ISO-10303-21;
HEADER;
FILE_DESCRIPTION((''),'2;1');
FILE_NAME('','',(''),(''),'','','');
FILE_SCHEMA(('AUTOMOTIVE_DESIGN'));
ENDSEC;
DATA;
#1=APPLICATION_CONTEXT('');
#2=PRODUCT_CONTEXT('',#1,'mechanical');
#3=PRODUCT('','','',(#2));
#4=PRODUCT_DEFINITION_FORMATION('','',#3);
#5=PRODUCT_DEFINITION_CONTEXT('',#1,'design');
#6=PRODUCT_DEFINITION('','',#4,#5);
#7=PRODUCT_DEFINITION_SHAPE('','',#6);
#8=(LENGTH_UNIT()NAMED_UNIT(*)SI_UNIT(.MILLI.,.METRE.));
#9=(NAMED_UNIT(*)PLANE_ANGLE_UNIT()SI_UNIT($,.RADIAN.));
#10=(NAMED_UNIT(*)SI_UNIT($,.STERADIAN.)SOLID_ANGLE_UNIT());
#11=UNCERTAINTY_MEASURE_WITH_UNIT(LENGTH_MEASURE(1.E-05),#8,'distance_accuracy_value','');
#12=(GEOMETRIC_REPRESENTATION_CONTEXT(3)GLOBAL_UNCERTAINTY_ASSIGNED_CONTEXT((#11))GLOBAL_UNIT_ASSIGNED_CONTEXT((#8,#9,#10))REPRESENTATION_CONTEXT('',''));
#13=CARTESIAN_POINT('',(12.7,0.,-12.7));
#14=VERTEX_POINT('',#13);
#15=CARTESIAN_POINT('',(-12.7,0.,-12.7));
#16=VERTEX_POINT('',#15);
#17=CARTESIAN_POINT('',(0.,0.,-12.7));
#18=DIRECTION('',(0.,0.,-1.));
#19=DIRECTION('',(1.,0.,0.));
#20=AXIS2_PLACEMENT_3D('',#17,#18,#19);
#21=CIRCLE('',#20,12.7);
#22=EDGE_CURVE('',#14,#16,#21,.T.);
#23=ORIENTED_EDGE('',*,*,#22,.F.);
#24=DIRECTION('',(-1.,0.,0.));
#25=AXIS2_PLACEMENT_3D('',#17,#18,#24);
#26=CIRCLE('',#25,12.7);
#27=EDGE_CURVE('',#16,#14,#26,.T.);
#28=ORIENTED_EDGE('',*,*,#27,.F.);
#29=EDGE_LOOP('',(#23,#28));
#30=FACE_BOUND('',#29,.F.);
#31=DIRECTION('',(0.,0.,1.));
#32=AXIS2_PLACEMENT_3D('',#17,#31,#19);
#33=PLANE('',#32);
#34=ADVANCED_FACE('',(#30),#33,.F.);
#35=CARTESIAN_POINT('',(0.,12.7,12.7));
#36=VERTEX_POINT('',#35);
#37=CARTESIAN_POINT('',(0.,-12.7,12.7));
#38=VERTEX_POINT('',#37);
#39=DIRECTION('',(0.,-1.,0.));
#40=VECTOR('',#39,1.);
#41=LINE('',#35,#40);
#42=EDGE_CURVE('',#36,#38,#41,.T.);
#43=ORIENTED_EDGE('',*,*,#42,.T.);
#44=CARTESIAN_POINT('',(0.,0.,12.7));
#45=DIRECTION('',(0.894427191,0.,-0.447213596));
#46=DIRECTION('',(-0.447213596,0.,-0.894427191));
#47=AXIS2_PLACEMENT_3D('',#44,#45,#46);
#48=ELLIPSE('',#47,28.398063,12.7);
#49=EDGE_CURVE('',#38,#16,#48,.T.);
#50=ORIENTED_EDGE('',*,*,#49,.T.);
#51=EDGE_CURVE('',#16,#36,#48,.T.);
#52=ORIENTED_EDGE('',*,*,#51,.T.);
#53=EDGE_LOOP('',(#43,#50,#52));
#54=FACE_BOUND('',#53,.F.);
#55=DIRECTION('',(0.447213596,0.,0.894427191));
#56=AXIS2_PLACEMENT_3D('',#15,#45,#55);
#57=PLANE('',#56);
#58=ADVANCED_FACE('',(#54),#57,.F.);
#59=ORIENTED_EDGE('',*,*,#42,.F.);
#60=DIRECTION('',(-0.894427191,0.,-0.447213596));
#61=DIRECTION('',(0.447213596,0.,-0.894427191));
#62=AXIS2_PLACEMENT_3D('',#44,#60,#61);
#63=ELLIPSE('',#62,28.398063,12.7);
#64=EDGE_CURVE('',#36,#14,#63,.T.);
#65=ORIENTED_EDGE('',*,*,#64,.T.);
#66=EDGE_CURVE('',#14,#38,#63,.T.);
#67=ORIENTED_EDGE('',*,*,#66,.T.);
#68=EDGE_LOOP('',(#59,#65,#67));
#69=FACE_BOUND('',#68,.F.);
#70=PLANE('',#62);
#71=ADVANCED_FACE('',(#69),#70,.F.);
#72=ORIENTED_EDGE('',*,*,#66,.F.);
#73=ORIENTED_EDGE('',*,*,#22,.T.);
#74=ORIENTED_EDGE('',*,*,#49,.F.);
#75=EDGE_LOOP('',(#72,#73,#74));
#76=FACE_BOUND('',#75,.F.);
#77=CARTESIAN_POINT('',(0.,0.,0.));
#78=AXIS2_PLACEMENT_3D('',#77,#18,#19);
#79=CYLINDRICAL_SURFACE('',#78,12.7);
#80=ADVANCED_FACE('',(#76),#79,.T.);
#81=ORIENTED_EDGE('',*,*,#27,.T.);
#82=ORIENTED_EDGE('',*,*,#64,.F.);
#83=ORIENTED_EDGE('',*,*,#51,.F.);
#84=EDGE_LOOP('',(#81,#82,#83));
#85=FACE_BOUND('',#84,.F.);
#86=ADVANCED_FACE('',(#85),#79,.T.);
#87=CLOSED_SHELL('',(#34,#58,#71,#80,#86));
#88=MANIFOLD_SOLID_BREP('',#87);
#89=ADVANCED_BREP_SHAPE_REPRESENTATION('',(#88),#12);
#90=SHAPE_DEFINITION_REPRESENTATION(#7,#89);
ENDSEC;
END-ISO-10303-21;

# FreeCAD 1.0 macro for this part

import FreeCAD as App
import Part
import Sketcher
from FreeCAD import Vector
Q = App.Units.Quantity


def add_polygon(sketch, points):
    """Adds a closed chain of lines whose ends are joined by coincident constraints."""
    first, n = sketch.GeometryCount, len(points)
    for a, b in zip(points, points[1:] + points[:1]):
        sketch.addGeometry(Part.LineSegment(App.Vector(*a, 0), App.Vector(*b, 0)), False)
    for i in range(n):
        sketch.addConstraint(Sketcher.Constraint("Coincident", first + i, 2, first + (i + 1) % n, 1))

doc = App.newDocument("Part")
body = doc.addObject("PartDesign::Body", "Body")

# Sketch on XY plane
sketch1 = body.newObject("Sketcher::SketchObject", "Sketch")
sketch1.AttachmentSupport = (doc.getObject("XY_Plane"), [""])
sketch1.MapMode = "FlatFace"
add_polygon(sketch1, [(-13, 13), (-13, -13), (13, -13), (13, 13)])  # lines 0-3
sketch1.addConstraint(Sketcher.Constraint("Vertical", 0))
sketch1.addConstraint(Sketcher.Constraint("Horizontal", 1))
sketch1.addConstraint(Sketcher.Constraint("Vertical", 2))
sketch1.addConstraint(Sketcher.Constraint("Horizontal", 3))
sketch1.addConstraint(Sketcher.Constraint("Symmetric", 0, 2, 2, 2, -1, 1))
sketch1.addConstraint(Sketcher.Constraint("Equal", 3, 0))
sketch1.addConstraint(Sketcher.Constraint("DistanceX", 1, 1, 1, 2, Q("1 in")))
pad1 = body.newObject("PartDesign::Pad", "Pad")
pad1.Profile = sketch1
pad1.Length = Q("1 in")
pad1.Midplane = True

# Sketch on XZ plane
sketch2 = body.newObject("Sketcher::SketchObject", "Sketch001")
sketch2.AttachmentSupport = (doc.getObject("XZ_Plane"), [""])
sketch2.MapMode = "FlatFace"
add_polygon(sketch2, [(-13, -13), (0, 13), (13, -13), (27, -13), (27, 24), (-33, 24), (-33, -13)])  # lines 0-6
sketch2.addConstraint(Sketcher.Constraint("Horizontal", 2))
sketch2.addConstraint(Sketcher.Constraint("Vertical", 3))
sketch2.addConstraint(Sketcher.Constraint("Horizontal", 4))
sketch2.addConstraint(Sketcher.Constraint("Vertical", 5))
sketch2.addConstraint(Sketcher.Constraint("Horizontal", 6))
sketch2.addConstraint(Sketcher.Constraint("Symmetric", 1, 2, 6, 2, -2))
sketch2.addConstraint(Sketcher.Constraint("PointOnObject", 0, 2, -2))
sketch2.addConstraint(Sketcher.Constraint("DistanceY", 1, 2, 0, 2, Q("1 in")))
sketch2.addConstraint(Sketcher.Constraint("DistanceX", 6, 2, 1, 2, Q("1 in")))
sketch2.addConstraint(Sketcher.Constraint("DistanceY", -1, 1, 0, 2, Q("0.5 in")))
sketch2.addConstraint(Sketcher.Constraint("DistanceX", 4, 2, 4, 1, Q("59.525511 mm")))
sketch2.addConstraint(Sketcher.Constraint("DistanceX", 2, 1, 2, 2, Q("13.929834 mm")))
sketch2.addConstraint(Sketcher.Constraint("DistanceY", 3, 1, 3, 2, Q("36.678902 mm")))
pocket1 = body.newObject("PartDesign::Pocket", "Pocket")
pocket1.Profile = sketch2
pocket1.Length = Q("1 in")
pocket1.Midplane = True

# Sketch on XY plane
sketch3 = body.newObject("Sketcher::SketchObject", "Sketch002")
sketch3.AttachmentSupport = (doc.getObject("XY_Plane"), [""])
sketch3.MapMode = "FlatFace"
sketch3.addGeometry(Part.Circle(Vector(0, 0, 0), Vector(0, 0, 1), 27), False)
sketch3.addGeometry(Part.Circle(Vector(0, 0, 0), Vector(0, 0, 1), 13), False)
sketch3.addConstraint(Sketcher.Constraint("Coincident", 0, 3, -1, 1))
sketch3.addConstraint(Sketcher.Constraint("Coincident", 1, 3, -1, 1))
sketch3.addConstraint(Sketcher.Constraint("Diameter", 1, Q("1 in")))
sketch3.addConstraint(Sketcher.Constraint("Diameter", 0, Q("53.385978 mm")))
pocket2 = body.newObject("PartDesign::Pocket", "Pocket001")
pocket2.Profile = sketch3
pocket2.Length = Q("1 in")
pocket2.Midplane = True

doc.recompute()
